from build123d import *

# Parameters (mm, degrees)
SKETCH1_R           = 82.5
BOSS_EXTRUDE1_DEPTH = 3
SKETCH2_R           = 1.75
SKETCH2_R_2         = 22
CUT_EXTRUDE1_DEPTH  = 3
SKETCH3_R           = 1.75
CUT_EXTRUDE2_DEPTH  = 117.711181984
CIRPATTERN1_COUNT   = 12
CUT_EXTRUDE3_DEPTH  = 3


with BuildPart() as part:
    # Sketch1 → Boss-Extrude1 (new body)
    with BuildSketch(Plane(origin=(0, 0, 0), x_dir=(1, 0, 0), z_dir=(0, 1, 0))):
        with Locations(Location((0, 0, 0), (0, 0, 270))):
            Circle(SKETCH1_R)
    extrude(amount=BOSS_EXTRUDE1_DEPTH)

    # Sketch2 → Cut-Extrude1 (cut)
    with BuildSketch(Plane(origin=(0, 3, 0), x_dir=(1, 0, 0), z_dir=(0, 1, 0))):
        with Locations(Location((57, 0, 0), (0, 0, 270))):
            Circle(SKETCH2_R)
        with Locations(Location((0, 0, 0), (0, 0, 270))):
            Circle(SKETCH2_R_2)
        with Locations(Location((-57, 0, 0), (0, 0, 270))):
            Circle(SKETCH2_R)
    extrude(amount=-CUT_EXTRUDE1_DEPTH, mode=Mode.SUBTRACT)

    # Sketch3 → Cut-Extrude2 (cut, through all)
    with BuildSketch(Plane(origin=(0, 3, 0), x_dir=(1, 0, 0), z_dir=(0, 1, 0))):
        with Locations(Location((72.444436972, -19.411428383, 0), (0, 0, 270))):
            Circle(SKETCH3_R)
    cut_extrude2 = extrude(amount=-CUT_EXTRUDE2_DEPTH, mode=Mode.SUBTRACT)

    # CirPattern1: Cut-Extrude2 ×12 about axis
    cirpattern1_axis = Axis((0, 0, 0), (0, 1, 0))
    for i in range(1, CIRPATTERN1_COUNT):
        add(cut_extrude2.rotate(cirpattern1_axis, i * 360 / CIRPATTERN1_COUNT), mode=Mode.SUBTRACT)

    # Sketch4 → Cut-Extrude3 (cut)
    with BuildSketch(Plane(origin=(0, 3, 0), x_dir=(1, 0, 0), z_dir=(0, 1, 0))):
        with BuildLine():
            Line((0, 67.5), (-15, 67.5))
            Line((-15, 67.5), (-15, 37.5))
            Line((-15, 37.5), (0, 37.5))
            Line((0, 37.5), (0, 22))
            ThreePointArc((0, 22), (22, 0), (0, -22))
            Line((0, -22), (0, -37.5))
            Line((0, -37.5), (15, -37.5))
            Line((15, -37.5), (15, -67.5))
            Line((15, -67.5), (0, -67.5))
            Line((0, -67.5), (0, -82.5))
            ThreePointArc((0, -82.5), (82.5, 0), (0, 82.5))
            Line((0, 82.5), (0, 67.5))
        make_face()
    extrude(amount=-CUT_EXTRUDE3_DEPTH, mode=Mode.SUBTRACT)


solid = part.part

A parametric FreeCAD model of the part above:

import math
import FreeCAD as App
import Part
import Sketcher

V = App.Vector
Q = App.Units.Quantity

doc = App.newDocument("Part")
body = doc.addObject("PartDesign::Body", "Body")

sketch1 = doc.addObject("Sketcher::SketchObject", "Sketch")
body.addObject(sketch1)
sketch1.AttachmentSupport = (doc.XZ_Plane, [""])
sketch1.MapMode = "FlatFace"
sketch1.addGeometry(Part.Circle(V(0, 0, 0), V(0, 0, 1), 82), False)
sketch1.addConstraint([
    Sketcher.Constraint("Coincident", 0, 3, -1, 1),
    Sketcher.Constraint("Diameter", 0, Q("165 mm")),
])
pad1 = doc.addObject("PartDesign::Pad", "Pad")
body.addObject(pad1)
pad1.Profile = sketch1
pad1.Length = 3
pad1.Reversed = True

sketch2 = doc.addObject("Sketcher::SketchObject", "Sketch001")
body.addObject(sketch2)
sketch2.AttachmentSupport = (doc.XZ_Plane, [""])
sketch2.MapMode = "FlatFace"
sketch2.AttachmentOffset = App.Placement(V(0, 0, -3), App.Rotation())
sketch2.addGeometry([
    Part.Circle(V(57, 0, 0), V(0, 0, 1), 1.8),
    Part.Circle(V(0, 0, 0), V(0, 0, 1), 22),
    Part.Circle(V(-57, 0, 0), V(0, 0, 1), 1.8),
], False)
sketch2.addConstraint([
    Sketcher.Constraint("Coincident", 1, 3, -1, 1),
    Sketcher.Constraint("Equal", 0, 2),
    Sketcher.Constraint("Symmetric", 0, 3, 2, 3, -1, 1),
    Sketcher.Constraint("PointOnObject", 0, 3, -1),
    Sketcher.Constraint("Diameter", 1, Q("44 mm")),
    Sketcher.Constraint("Diameter", 0, Q("3.5 mm")),
    Sketcher.Constraint("DistanceX", -1, 1, 0, 3, Q("57 mm")),
])
pocket1 = doc.addObject("PartDesign::Pocket", "Pocket")
body.addObject(pocket1)
pocket1.Profile = sketch2
pocket1.Length = 3
pocket1.Reversed = True

sketch3 = doc.addObject("Sketcher::SketchObject", "Sketch002")
body.addObject(sketch3)
sketch3.AttachmentSupport = (doc.XZ_Plane, [""])
sketch3.MapMode = "FlatFace"
sketch3.AttachmentOffset = App.Placement(V(0, 0, -3), App.Rotation())
sketch3.addGeometry(Part.Circle(V(72.4, 19.4, 0), V(0, 0, 1), 1.8), False)
sketch3.addConstraint([
    Sketcher.Constraint("Diameter", 0, Q("3.5 mm")),
    Sketcher.Constraint("DistanceY", -1, 1, 0, 3, Q("19.411428 mm")),
    Sketcher.Constraint("DistanceX", -1, 1, 0, 3, Q("72.444437 mm")),
])
pocket2 = doc.addObject("PartDesign::Pocket", "Pocket001")
body.addObject(pocket2)
pocket2.Profile = sketch3
pocket2.Type = "ThroughAll"
pocket2.Reversed = True
doc.recompute()

polarpattern = doc.addObject("PartDesign::PolarPattern", "PolarPattern")
body.addObject(polarpattern)
polarpattern.Originals = [pocket2]
polarpattern.Axis = (doc.Y_Axis, [""])
polarpattern.Angle = 360
polarpattern.Occurrences = 12
body.Tip = polarpattern

sketch4 = doc.addObject("Sketcher::SketchObject", "Sketch003")
body.addObject(sketch4)
sketch4.AttachmentSupport = (doc.XZ_Plane, [""])
sketch4.MapMode = "FlatFace"
sketch4.AttachmentOffset = App.Placement(V(0, 0, -3), App.Rotation())
sketch4.addGeometry([
    Part.LineSegment(V(0, -68, 0), V(-15, -68, 0)),
    Part.LineSegment(V(-15, -68, 0), V(-15, -38, 0)),
    Part.LineSegment(V(-15, -38, 0), V(0, -38, 0)),
    Part.LineSegment(V(0, -38, 0), V(0, -22, 0)),
    Part.ArcOfCircle(Part.Circle(V(0, 0, 0), V(0, 0, 1), 22), math.radians(-90), math.radians(90)),
    Part.LineSegment(V(0, 22, 0), V(0, 38, 0)),
    Part.LineSegment(V(0, 38, 0), V(15, 38, 0)),
    Part.LineSegment(V(15, 38, 0), V(15, 68, 0)),
    Part.LineSegment(V(15, 68, 0), V(0, 68, 0)),
    Part.LineSegment(V(0, 68, 0), V(0, 82, 0)),
    Part.ArcOfCircle(Part.Circle(V(0, 0, 0), V(0, 0, 1), 82), math.radians(-90), math.radians(90)),
    Part.LineSegment(V(0, -82, 0), V(0, -68, 0)),
], False)
sketch4.addConstraint([
    Sketcher.Constraint("Coincident", 0, 2, 1, 1),
    Sketcher.Constraint("Coincident", 1, 2, 2, 1),
    Sketcher.Constraint("Coincident", 2, 2, 3, 1),
    Sketcher.Constraint("Coincident", 3, 2, 4, 1),
    Sketcher.Constraint("Coincident", 4, 2, 5, 1),
    Sketcher.Constraint("Coincident", 5, 2, 6, 1),
    Sketcher.Constraint("Coincident", 6, 2, 7, 1),
    Sketcher.Constraint("Coincident", 7, 2, 8, 1),
    Sketcher.Constraint("Coincident", 8, 2, 9, 1),
    Sketcher.Constraint("Coincident", 9, 2, 10, 2),
    Sketcher.Constraint("Coincident", 10, 1, 11, 1),
    Sketcher.Constraint("Coincident", 11, 2, 0, 1),
    Sketcher.Constraint("Horizontal", 0),
    Sketcher.Constraint("Vertical", 1),
    Sketcher.Constraint("Horizontal", 2),
    Sketcher.Constraint("Vertical", 3),
    Sketcher.Constraint("Vertical", 5),
    Sketcher.Constraint("Horizontal", 6),
    Sketcher.Constraint("Vertical", 7),
    Sketcher.Constraint("Horizontal", 8),
    Sketcher.Constraint("Vertical", 9),
    Sketcher.Constraint("Vertical", 11),
    Sketcher.Constraint("Coincident", 4, 3, -1, 1),
    Sketcher.Constraint("Coincident", 10, 3, -1, 1),
    Sketcher.Constraint("Symmetric", 2, 2, 5, 2, -1, 1),
    Sketcher.Constraint("Symmetric", 0, 2, 7, 2, -1, 1),
    Sketcher.Constraint("PointOnObject", 2, 2, -2),
    Sketcher.Constraint("PointOnObject", 8, 2, -2),
    Sketcher.Constraint("PointOnObject", 10, 1, -2),
    Sketcher.Constraint("Equal", 8, 9),
    Sketcher.Constraint("Radius", 4, Q("22 mm")),
    Sketcher.Constraint("Radius", 10, Q("82.5 mm")),
    Sketcher.Constraint("DistanceX", 0, 2, 0, 1, Q("15 mm")),
    Sketcher.Constraint("DistanceY", 1, 1, 1, 2, Q("30 mm")),
])
pocket3 = doc.addObject("PartDesign::Pocket", "Pocket002")
body.addObject(pocket3)
pocket3.Profile = sketch4
pocket3.Length = 3
pocket3.Reversed = True

doc.recompute()
